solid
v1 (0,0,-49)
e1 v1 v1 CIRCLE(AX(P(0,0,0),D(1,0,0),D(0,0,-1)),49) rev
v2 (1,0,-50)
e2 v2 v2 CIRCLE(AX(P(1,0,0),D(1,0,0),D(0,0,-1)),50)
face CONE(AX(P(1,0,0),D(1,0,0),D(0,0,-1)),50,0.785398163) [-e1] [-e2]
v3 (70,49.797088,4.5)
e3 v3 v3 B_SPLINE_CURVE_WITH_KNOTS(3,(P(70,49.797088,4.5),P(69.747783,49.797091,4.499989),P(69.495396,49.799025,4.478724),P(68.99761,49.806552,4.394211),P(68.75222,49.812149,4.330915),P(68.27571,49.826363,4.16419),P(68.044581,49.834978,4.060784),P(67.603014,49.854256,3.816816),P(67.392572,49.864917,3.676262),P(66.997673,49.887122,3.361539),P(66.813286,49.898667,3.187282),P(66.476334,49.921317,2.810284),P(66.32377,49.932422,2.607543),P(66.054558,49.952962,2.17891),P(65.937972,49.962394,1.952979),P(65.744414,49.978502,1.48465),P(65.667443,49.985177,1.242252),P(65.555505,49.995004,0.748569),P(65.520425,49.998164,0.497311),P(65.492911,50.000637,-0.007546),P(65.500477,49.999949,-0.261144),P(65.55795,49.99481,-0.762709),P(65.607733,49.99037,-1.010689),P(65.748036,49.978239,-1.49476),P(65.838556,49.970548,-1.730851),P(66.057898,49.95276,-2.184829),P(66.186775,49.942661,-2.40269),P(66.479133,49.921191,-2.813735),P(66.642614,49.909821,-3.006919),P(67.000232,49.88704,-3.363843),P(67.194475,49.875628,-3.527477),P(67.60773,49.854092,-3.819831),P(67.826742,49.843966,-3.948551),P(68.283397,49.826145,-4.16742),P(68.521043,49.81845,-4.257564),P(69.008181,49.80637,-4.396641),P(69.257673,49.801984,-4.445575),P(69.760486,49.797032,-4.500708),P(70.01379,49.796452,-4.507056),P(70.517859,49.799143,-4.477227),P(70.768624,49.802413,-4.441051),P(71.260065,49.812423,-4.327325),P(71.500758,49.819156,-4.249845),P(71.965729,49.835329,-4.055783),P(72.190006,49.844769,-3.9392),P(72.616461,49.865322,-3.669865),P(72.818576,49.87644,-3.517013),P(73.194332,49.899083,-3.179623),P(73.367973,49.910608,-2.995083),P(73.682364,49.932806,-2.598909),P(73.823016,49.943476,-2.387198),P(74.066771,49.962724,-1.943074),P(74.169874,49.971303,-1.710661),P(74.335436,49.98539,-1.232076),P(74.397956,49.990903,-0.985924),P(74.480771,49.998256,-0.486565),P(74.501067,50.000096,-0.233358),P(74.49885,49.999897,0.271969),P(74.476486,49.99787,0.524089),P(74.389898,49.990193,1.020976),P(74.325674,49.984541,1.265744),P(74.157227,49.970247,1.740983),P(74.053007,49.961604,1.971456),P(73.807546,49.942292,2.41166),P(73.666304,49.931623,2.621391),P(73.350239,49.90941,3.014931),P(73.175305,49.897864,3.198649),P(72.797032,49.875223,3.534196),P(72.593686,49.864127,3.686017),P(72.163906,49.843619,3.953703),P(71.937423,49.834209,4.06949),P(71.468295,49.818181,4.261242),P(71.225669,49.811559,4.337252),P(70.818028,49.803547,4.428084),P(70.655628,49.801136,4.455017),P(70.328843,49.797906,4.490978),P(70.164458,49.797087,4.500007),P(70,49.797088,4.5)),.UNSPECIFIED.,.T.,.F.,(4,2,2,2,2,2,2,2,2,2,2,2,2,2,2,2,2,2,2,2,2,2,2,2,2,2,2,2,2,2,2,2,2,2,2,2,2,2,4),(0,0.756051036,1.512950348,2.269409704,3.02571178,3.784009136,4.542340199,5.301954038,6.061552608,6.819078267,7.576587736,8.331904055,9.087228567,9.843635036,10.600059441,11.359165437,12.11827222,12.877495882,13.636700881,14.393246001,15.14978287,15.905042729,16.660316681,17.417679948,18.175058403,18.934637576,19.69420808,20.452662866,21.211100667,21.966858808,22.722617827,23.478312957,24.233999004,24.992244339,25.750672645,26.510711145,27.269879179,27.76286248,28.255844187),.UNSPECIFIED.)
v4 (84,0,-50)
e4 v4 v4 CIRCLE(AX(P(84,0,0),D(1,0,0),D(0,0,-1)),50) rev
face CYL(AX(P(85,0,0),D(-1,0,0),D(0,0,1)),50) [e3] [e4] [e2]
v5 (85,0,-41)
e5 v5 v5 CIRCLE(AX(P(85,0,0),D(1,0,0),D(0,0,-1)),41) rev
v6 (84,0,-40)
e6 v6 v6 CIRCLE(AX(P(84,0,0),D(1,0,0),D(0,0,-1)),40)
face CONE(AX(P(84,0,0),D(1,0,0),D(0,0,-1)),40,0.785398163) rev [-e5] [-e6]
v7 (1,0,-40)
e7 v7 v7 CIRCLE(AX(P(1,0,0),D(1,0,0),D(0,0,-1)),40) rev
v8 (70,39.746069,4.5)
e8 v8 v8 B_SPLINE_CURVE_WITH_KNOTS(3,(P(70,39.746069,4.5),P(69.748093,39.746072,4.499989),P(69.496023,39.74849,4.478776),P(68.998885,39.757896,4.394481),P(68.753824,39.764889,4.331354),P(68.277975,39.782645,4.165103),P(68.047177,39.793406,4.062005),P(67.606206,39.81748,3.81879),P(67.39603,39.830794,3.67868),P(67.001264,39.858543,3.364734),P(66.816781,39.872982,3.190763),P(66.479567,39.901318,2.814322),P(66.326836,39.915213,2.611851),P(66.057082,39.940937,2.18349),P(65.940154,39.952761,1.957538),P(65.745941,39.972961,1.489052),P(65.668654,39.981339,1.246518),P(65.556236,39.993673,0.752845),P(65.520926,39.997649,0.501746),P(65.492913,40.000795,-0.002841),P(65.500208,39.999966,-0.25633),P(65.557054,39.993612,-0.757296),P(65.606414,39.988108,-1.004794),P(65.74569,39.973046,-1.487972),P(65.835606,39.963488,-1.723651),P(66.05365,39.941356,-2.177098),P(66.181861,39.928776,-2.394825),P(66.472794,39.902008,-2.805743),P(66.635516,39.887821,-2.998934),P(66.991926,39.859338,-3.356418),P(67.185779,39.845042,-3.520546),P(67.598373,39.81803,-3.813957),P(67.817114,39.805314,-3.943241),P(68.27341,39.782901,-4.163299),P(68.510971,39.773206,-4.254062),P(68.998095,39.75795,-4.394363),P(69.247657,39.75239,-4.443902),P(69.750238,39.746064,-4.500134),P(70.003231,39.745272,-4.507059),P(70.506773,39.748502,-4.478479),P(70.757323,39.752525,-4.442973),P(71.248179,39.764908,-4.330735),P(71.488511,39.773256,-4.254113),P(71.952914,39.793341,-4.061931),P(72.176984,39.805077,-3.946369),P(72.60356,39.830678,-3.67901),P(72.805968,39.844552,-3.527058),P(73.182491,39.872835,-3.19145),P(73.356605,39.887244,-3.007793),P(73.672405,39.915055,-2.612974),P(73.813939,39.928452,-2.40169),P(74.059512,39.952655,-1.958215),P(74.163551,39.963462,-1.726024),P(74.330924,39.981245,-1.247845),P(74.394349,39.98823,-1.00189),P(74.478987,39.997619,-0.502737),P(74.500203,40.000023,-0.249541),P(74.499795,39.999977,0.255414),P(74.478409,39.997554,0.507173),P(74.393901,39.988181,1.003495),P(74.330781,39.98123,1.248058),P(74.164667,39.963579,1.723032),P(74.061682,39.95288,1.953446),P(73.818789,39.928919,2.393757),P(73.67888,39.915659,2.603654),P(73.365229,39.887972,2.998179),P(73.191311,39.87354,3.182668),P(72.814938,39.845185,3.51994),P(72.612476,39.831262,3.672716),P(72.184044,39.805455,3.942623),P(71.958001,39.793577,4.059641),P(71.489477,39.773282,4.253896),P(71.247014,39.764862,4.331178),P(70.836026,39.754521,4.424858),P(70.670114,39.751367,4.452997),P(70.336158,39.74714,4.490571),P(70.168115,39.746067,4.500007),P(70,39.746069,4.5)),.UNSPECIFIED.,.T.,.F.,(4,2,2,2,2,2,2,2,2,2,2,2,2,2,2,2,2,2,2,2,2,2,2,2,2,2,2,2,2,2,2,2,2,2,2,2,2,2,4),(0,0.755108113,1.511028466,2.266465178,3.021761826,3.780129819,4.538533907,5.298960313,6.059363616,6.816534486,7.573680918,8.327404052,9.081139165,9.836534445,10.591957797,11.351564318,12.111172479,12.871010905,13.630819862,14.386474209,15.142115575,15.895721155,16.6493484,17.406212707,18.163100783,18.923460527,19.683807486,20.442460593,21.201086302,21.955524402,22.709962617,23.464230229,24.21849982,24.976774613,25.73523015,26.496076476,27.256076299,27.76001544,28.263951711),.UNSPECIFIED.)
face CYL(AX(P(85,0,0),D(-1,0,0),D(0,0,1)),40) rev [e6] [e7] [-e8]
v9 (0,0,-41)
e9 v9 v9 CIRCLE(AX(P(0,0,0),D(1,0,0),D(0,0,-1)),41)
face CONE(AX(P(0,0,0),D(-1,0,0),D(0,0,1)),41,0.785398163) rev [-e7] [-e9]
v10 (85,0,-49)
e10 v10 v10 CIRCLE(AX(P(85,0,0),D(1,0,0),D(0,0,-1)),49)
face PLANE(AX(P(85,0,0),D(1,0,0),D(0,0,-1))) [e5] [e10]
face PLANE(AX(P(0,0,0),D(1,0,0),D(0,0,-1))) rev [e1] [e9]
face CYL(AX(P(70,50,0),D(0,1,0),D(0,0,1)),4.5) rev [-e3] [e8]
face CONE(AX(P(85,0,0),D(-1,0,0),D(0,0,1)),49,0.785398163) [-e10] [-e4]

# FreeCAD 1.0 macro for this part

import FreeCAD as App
import Part
import Sketcher
from FreeCAD import Vector
Q = App.Units.Quantity


def edges_at(feature, points):
    """Names of the edges that pass closest to the given points."""
    edges = feature.Shape.Edges
    near = lambda p: min(range(len(edges)), key=lambda i: edges[i].distToShape(Part.Vertex(*p))[0])
    return sorted({f"Edge{near(p) + 1}" for p in points})

doc = App.newDocument("Part")
body = doc.addObject("PartDesign::Body", "Body")

# Sketch on YZ plane
sketch1 = body.newObject("Sketcher::SketchObject", "Sketch")
sketch1.AttachmentSupport = (doc.getObject("YZ_Plane"), [""])
sketch1.MapMode = "FlatFace"
sketch1.addGeometry([
    Part.Circle(Vector(0, 0, 0), Vector(0, 0, 1), 50),
    Part.Circle(Vector(0, 0, 0), Vector(0, 0, 1), 40),
], False)
sketch1.addConstraint([
    Sketcher.Constraint("Coincident", 0, 3, -1, 1),
    Sketcher.Constraint("Coincident", 1, 3, -1, 1),
    Sketcher.Constraint("Diameter", 0, Q("100 mm")),
    Sketcher.Constraint("Diameter", 1, Q("80 mm")),
])
pad1 = body.newObject("PartDesign::Pad", "Pad")
pad1.Profile = sketch1
pad1.Length = 85
doc.recompute()

chamfer = body.newObject("PartDesign::Chamfer", "Chamfer")
chamfer.Base = (pad1, edges_at(pad1, [
    (0, 0, 50),
    (85, 0, 50),
    (0, 0, 40),
    (85, 0, 40),
]))
chamfer.Size = 1

# Sketch on XZ plane
sketch2 = body.newObject("Sketcher::SketchObject", "Sketch001")
sketch2.AttachmentSupport = (doc.getObject("XZ_Plane"), [""])
sketch2.MapMode = "FlatFace"
sketch2.AttachmentOffset = App.Placement(Vector(0, 0, -50), App.Rotation())
sketch2.addGeometry(Part.Circle(Vector(70, 0, 0), Vector(0, 0, 1), 4.5), False)
sketch2.addConstraint([
    Sketcher.Constraint("PointOnObject", 0, 3, -1),
    Sketcher.Constraint("Diameter", 0, Q("9 mm")),
    Sketcher.Constraint("DistanceX", -1, 1, 0, 3, Q("70 mm")),
])
doc.recompute()
hole = body.newObject("PartDesign::Hole", "Hole")
hole.Profile = sketch2
hole.ThreadType = "None"
hole.Diameter = 9
hole.DepthType = "Dimension"
hole.Depth = 25
hole.DrillPoint = "Angled"
hole.DrillPointAngle = 118
hole.Reversed = True

doc.recompute()
